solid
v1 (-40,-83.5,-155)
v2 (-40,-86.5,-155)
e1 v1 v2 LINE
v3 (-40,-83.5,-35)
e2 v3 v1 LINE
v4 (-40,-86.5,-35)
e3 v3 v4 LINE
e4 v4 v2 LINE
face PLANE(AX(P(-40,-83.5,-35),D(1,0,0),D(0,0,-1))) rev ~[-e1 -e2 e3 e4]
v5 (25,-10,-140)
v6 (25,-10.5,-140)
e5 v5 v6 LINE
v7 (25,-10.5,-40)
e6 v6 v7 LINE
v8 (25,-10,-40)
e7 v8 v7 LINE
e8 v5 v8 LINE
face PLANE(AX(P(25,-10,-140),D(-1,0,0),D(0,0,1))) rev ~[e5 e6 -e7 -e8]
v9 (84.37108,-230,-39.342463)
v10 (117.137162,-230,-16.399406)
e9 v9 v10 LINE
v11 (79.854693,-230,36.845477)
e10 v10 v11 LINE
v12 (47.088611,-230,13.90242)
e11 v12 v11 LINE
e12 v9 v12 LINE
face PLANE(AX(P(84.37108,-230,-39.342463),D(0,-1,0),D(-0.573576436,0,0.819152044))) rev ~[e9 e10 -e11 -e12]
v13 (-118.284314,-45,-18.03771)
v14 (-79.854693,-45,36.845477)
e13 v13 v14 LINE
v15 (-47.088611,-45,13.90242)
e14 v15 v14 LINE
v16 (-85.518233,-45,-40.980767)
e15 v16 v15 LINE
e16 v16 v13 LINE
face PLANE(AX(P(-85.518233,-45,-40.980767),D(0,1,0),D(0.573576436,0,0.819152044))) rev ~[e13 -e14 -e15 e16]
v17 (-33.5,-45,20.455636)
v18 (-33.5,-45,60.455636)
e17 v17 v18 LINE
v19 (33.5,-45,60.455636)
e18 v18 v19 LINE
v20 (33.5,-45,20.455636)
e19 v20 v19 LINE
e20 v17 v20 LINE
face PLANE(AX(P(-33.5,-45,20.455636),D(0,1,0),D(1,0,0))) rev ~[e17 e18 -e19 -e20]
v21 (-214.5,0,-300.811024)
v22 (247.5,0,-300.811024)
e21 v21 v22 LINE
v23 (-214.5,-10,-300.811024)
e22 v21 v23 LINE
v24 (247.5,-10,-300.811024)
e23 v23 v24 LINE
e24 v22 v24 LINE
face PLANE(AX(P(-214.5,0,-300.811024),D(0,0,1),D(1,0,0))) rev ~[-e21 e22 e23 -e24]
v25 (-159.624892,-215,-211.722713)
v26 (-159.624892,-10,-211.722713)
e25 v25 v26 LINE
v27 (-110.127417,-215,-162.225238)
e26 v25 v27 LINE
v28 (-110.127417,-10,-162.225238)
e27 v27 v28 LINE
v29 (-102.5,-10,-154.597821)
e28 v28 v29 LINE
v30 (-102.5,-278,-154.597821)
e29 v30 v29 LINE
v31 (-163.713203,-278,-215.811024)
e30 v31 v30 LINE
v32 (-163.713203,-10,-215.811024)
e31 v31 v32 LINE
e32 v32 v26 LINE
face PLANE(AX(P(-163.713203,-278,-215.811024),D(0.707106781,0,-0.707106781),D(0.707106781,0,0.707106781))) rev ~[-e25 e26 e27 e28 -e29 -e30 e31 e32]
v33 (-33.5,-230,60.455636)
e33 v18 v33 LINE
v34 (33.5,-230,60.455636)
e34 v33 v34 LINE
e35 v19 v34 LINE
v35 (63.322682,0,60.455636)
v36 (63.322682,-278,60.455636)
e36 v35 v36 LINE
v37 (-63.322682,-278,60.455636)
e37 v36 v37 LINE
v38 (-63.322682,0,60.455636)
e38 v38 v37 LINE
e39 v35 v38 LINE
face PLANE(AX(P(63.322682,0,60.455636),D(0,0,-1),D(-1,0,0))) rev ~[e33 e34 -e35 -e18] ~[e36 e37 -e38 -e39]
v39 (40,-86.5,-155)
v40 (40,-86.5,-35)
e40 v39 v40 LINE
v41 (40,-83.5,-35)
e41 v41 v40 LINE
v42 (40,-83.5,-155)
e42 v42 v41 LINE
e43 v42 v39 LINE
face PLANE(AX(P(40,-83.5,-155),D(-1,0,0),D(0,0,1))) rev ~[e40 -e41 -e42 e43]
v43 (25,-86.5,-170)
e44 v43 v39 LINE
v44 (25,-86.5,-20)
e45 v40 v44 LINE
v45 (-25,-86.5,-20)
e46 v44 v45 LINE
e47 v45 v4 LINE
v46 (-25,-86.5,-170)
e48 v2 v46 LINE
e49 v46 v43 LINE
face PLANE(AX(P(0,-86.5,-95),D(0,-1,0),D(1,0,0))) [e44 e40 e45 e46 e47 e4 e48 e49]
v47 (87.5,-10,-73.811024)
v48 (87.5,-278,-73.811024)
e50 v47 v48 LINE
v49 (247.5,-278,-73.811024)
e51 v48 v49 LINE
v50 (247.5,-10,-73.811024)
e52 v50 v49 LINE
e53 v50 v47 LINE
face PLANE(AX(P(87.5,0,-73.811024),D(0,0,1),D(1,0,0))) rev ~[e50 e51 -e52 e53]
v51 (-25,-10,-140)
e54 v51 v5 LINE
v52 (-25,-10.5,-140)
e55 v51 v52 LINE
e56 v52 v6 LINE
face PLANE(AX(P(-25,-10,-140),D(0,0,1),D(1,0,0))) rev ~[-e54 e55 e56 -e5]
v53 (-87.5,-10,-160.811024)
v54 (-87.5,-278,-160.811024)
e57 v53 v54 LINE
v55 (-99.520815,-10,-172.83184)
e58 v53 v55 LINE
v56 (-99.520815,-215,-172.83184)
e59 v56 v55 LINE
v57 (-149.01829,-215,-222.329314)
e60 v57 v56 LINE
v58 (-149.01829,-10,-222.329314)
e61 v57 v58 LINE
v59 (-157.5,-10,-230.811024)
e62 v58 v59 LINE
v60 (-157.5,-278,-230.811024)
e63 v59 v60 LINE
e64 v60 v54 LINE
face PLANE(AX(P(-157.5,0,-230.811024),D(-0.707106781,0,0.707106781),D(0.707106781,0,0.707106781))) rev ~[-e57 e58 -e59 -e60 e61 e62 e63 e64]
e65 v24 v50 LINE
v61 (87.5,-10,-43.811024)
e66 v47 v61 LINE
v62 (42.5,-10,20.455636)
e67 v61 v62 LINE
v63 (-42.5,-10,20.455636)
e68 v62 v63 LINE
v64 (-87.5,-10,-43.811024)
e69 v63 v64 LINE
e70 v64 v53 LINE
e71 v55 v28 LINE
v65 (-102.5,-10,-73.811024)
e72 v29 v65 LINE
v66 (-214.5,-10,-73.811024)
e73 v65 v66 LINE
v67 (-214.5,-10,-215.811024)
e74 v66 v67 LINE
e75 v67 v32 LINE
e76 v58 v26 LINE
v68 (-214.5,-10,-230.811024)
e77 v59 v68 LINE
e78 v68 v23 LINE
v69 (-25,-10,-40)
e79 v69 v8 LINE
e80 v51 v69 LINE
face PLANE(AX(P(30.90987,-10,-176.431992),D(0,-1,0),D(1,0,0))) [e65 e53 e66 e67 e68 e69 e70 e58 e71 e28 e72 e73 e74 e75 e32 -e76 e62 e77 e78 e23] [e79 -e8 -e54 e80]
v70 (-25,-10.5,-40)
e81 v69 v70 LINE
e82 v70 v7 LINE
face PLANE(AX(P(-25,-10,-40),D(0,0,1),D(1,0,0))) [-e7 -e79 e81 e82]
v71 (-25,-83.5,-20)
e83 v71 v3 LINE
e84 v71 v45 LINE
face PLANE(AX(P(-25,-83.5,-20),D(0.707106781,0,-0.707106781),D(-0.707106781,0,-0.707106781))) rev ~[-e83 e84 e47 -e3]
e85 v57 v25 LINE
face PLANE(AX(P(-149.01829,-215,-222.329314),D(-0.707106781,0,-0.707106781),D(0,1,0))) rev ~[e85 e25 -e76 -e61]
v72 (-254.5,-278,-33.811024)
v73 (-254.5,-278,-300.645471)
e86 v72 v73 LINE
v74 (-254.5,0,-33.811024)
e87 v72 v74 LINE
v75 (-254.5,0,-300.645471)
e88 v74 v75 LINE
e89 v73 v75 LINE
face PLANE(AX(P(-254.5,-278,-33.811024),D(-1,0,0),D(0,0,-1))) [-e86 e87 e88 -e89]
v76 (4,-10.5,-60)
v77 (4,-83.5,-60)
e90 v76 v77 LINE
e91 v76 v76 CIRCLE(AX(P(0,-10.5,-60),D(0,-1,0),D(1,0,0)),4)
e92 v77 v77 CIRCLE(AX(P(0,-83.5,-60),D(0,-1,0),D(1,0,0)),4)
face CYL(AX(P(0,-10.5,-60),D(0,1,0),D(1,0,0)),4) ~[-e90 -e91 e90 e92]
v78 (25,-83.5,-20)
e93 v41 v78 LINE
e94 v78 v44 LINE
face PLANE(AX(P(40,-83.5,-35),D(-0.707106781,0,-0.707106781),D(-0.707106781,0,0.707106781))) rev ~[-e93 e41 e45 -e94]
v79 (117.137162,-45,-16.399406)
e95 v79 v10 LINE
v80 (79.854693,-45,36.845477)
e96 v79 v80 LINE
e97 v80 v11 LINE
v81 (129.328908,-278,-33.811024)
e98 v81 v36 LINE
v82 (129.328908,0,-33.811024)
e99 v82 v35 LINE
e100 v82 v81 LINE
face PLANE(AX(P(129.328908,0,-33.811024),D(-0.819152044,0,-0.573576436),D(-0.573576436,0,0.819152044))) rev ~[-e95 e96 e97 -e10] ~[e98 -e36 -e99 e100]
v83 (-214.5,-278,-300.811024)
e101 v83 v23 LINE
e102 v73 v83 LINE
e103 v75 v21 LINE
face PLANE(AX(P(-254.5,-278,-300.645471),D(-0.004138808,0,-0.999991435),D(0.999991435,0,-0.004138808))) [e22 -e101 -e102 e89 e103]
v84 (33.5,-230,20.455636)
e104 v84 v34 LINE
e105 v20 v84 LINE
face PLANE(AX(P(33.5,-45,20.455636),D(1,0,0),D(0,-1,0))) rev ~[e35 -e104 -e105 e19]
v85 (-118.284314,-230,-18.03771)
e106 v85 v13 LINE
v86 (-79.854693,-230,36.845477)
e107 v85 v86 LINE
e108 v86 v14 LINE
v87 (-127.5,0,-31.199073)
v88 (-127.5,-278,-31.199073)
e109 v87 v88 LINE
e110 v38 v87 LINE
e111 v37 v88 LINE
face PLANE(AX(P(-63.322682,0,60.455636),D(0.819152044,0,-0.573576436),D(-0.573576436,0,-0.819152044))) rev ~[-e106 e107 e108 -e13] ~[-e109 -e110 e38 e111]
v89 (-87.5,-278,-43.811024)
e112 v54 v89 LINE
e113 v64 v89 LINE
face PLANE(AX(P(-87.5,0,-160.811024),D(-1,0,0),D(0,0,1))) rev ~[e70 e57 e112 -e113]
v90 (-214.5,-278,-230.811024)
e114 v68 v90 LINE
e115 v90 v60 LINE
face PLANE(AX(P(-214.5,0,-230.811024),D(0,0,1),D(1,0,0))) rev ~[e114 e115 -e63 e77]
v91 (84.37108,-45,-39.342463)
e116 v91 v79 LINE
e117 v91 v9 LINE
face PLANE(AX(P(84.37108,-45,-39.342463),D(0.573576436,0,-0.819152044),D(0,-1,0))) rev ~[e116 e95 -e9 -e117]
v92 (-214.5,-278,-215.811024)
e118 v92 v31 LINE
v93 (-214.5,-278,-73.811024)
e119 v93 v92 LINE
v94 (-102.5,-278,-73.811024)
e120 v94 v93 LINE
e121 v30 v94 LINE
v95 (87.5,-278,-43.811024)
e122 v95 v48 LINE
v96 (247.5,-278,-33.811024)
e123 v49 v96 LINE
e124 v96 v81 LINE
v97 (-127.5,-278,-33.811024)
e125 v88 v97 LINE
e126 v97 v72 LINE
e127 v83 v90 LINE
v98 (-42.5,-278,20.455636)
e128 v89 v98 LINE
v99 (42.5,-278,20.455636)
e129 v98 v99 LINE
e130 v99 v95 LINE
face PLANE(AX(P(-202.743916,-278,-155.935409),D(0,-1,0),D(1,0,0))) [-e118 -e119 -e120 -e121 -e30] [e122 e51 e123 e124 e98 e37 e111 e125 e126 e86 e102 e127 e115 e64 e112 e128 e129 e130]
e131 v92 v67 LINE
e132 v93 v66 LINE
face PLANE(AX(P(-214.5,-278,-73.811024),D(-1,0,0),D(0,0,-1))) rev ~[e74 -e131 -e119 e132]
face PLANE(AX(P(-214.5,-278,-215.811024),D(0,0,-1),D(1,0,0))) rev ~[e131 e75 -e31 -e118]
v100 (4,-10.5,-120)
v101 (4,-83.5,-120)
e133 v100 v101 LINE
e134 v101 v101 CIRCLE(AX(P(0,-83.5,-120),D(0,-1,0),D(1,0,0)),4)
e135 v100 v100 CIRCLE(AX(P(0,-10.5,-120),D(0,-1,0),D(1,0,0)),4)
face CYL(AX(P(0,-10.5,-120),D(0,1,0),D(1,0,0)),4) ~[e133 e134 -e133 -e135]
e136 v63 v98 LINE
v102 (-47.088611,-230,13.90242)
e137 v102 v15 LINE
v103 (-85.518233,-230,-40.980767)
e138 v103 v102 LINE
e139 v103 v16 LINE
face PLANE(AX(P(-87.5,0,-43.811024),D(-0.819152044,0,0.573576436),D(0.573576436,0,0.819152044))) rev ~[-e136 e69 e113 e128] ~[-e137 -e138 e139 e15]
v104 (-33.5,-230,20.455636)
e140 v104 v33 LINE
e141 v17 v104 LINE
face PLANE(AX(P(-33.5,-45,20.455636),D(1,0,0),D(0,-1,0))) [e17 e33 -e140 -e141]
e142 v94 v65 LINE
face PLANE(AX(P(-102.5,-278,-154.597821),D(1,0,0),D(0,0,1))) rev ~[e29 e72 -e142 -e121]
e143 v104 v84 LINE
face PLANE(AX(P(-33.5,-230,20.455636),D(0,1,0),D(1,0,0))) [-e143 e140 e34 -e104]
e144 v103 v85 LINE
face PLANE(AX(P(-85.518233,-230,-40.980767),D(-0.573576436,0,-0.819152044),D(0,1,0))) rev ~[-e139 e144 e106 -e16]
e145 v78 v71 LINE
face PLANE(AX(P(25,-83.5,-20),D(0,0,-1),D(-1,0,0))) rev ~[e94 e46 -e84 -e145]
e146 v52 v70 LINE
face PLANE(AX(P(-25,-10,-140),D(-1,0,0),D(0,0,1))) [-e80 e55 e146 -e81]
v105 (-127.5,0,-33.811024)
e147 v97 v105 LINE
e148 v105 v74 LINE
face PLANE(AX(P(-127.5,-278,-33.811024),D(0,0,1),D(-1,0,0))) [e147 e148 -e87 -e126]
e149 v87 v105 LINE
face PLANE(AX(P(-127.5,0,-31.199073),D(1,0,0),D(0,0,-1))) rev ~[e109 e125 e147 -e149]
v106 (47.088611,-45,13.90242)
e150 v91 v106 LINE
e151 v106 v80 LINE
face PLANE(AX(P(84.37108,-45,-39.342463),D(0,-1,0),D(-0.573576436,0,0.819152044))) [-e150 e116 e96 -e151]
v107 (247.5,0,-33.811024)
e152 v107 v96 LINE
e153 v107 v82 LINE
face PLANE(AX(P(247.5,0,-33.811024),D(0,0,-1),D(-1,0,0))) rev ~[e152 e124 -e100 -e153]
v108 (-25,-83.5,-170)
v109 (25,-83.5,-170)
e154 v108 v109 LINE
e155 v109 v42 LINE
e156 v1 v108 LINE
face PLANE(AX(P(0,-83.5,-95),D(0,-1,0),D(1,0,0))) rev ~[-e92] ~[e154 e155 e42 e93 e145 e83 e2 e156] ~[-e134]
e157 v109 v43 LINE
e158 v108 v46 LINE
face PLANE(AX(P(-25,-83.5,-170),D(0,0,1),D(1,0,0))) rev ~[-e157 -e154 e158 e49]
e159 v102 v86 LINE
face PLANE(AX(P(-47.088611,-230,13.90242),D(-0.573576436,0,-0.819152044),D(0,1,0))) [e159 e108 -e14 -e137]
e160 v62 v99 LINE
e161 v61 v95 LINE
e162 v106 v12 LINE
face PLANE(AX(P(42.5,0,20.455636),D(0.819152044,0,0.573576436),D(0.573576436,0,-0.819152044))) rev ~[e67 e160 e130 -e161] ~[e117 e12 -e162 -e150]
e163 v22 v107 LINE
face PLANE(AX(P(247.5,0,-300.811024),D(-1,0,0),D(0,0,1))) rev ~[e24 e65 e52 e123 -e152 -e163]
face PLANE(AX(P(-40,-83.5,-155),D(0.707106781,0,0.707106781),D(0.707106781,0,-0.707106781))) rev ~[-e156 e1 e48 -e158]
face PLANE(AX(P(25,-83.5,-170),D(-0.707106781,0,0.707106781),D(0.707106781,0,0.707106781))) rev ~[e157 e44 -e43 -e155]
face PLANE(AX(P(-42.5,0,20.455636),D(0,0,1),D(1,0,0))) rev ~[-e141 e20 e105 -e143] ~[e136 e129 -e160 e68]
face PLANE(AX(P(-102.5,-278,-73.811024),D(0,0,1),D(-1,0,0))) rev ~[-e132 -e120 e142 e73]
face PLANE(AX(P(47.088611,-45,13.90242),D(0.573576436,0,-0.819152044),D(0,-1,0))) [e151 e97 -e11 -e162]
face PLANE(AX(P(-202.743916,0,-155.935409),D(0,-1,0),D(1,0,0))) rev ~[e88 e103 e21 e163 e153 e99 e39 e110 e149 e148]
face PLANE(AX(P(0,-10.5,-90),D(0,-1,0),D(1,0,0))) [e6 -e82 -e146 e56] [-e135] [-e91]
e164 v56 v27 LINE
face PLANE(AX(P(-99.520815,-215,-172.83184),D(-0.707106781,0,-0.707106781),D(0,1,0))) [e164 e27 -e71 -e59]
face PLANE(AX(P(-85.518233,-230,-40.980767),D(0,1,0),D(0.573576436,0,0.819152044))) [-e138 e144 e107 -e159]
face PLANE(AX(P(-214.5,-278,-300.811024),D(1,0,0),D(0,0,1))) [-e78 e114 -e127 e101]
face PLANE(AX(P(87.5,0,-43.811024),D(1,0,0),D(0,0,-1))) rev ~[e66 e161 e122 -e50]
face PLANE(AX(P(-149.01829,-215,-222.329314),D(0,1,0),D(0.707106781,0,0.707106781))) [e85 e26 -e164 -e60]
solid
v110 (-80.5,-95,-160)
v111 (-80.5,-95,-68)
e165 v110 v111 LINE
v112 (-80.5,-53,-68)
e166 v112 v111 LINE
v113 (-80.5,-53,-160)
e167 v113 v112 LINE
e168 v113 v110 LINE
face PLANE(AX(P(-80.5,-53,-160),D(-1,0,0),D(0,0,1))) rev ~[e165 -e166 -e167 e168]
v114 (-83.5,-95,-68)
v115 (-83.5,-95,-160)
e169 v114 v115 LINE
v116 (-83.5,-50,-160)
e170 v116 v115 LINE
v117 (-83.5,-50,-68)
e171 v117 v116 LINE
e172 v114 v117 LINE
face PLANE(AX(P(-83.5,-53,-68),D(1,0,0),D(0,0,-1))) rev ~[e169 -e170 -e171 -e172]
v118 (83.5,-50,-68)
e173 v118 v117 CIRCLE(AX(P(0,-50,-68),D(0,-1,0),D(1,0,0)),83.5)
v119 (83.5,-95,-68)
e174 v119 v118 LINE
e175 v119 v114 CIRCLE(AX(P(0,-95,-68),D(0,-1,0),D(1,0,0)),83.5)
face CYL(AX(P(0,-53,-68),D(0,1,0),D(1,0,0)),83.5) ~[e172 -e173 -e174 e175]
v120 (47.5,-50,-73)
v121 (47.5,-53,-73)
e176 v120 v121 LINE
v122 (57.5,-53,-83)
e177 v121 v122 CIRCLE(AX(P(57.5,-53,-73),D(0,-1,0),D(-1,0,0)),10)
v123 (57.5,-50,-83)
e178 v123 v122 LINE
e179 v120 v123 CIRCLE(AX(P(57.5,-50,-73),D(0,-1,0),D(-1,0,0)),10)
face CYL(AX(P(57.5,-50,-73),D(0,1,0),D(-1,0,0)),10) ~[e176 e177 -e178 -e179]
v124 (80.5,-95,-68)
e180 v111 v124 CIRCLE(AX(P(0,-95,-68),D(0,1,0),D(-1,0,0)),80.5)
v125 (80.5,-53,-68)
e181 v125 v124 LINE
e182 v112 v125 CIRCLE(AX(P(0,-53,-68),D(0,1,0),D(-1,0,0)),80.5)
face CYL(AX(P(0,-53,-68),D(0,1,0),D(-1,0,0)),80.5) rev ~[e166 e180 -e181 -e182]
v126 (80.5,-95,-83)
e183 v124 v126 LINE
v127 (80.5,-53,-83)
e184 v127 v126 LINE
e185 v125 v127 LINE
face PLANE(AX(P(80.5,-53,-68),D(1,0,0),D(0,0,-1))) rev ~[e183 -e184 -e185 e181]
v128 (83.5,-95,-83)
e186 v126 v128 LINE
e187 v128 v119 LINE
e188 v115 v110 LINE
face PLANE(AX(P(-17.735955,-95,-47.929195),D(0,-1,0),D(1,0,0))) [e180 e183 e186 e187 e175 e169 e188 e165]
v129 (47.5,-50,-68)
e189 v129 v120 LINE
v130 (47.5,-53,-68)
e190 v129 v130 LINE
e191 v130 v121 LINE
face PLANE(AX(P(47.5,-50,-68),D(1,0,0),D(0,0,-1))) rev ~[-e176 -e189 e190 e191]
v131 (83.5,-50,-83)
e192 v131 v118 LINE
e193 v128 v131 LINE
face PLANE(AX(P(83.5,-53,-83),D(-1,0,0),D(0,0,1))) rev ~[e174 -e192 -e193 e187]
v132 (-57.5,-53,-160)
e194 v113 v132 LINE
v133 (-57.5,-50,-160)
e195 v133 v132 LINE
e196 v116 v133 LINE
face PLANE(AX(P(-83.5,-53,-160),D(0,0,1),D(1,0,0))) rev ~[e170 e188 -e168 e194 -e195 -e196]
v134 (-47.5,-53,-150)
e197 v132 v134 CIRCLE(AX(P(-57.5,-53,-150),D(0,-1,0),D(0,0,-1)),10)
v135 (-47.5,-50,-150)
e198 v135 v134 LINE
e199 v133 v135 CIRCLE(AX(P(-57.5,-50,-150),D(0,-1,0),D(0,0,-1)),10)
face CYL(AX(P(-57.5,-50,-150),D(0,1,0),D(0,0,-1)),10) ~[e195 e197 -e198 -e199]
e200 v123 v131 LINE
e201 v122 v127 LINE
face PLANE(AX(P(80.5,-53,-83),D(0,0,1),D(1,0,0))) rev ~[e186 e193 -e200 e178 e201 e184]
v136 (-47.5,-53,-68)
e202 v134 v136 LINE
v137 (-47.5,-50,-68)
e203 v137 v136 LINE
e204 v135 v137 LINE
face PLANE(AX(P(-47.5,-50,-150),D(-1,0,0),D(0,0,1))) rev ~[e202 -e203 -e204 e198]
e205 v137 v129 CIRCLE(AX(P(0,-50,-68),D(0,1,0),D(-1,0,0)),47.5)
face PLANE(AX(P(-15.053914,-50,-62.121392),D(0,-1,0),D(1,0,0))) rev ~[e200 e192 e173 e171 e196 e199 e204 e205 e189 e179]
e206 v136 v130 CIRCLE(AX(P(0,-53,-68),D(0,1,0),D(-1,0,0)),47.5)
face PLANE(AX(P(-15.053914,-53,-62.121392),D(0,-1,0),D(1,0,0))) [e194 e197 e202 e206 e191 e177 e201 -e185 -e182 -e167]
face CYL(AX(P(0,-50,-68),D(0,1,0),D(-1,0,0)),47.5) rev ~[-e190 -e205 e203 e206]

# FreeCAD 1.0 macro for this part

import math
import FreeCAD as App
import Part
import Sketcher
Q = App.Units.Quantity


def add_polygon(sketch, points):
    """Adds a closed chain of lines whose ends are joined by coincident constraints."""
    first, n = sketch.GeometryCount, len(points)
    for a, b in zip(points, points[1:] + points[:1]):
        sketch.addGeometry(Part.LineSegment(App.Vector(*a, 0), App.Vector(*b, 0)), False)
    for i in range(n):
        sketch.addConstraint(Sketcher.Constraint("Coincident", first + i, 2, first + (i + 1) % n, 1))

doc = App.newDocument("Part")
params = doc.addObject("Spreadsheet::Sheet", "Params")
for row, (alias, value) in enumerate([
    ("sketch1_width", "462 mm"),
    ("sketch1_width2", "160 mm"),
    ("sketch1_width3", "85 mm"),
    ("sketch1_width4", "57 mm"),
    ("sketch1_height", "70 mm"),
    ("pad1_length", "10 mm"),
    ("sketch2_width", "160 mm"),
    ("sketch2_width2", "57 mm"),
    ("sketch2_width3", "85 mm"),
    ("sketch2_height", "30 mm"),
    ("sketch2_height2", "40 mm"),
    ("pad2_length", "278 mm"),
    ("sketch3_width", "67 mm"),
    ("sketch3_height", "185 mm"),
    ("pocket1_length", "50 mm"),
    ("sketch4_width", "185 mm"),
    ("sketch4_height", "67 mm"),
    ("pocket2_length", "50 mm"),
    ("sketch5_width", "185 mm"),
    ("sketch5_height", "65 mm"),
    ("pocket3_length", "50 mm"),
    ("sketch6_width", "127 mm"),
    ("sketch6_height", "85 mm"),
    ("pad3_length", "278 mm"),
    ("sketch7_width", "112 mm"),
    ("sketch7_height", "142 mm"),
    ("pocket4_length", "268 mm"),
    ("sketch8_width", "205 mm"),
    ("sketch8_height", "70 mm"),
    ("pocket5_length", "25 mm"),
    ("sketch9_width", "50 mm"),
    ("sketch9_height", "100 mm"),
    ("pad4_length", "0.5 mm"),
    ("sketch10_diameter", "8 mm"),
    ("pad5_length", "73 mm"),
    ("sketch11_width", "50 mm"),
    ("sketch11_height", "120 mm"),
    ("pad6_length", "3 mm"),
    ("sketch12_radius", "10 mm"),
    ("sketch12_radius2", "47.5 mm"),
    ("sketch12_radius3", "83.5 mm"),
    ("sketch12_height", "5 mm"),
    ("sketch12_height2", "92 mm"),
    ("pad7_length", "3 mm"),
    ("sketch13_radius", "80.5 mm"),
    ("sketch13_radius2", "83.5 mm"),
    ("sketch13_height", "92 mm"),
    ("sketch13_height2", "15 mm"),
    ("pad8_length", "42 mm"),
], start=1):
    params.set(f"A{row}", alias)
    params.set(f"B{row}", "=" + value)
    params.setAlias(f"B{row}", alias)

body = doc.addObject("PartDesign::Body", "Body")

# Sketch on XZ plane
sketch1 = body.newObject("Sketcher::SketchObject", "Sketch")
sketch1.AttachmentSupport = (doc.getObject("XZ_Plane"), [""])
sketch1.MapMode = "FlatFace"
add_polygon(sketch1, [(-214.5, -230.811024), (-214.5, -300.811024), (247.5, -300.811024), (247.5, -73.811024), (87.5, -73.811024), (87.5, -43.811024), (42.5, 20.455636), (-42.5, 20.455636), (-87.5, -43.811024), (-87.5, -160.811024), (-157.5, -230.811024)])  # lines 0-10
sketch1.addConstraint([
    Sketcher.Constraint("Vertical", 0),
    Sketcher.Constraint("Horizontal", 1),
    Sketcher.Constraint("Vertical", 2),
    Sketcher.Constraint("Horizontal", 3),
    Sketcher.Constraint("Vertical", 4),
    Sketcher.Constraint("Horizontal", 6),
    Sketcher.Constraint("Vertical", 8),
    Sketcher.Constraint("Horizontal", 10),
    Sketcher.Constraint("Symmetric", 4, 2, 7, 2, -2),
    Sketcher.Constraint("Equal", 5, 7),
    Sketcher.Constraint("DistanceX", 1, 1, 1, 2, 462.0),
    Sketcher.Constraint("DistanceX", 3, 2, 3, 1, 160.0),
    Sketcher.Constraint("DistanceX", 6, 2, 6, 1, 85.0),
    Sketcher.Constraint("DistanceX", 10, 2, 10, 1, 57.0),
    Sketcher.Constraint("DistanceY", 0, 2, 0, 1, 70.0),
    Sketcher.Constraint("DistanceY", 2, 1, 2, 2, 227.0),
    Sketcher.Constraint("DistanceY", 4, 1, 4, 2, 30.0),
    Sketcher.Constraint("DistanceY", 8, 2, 8, 1, 117.0),
    Sketcher.Constraint("Angle", 5, Q("125 deg")),
    Sketcher.Constraint("Angle", 9, Q("-135 deg")),
    Sketcher.Constraint("DistanceY", 0, 2, -1, 1, 300.811024),
])
sketch1.setExpression("Constraints[21]", "Params.sketch1_width")
sketch1.setExpression("Constraints[22]", "Params.sketch1_width2")
sketch1.setExpression("Constraints[23]", "Params.sketch1_width3")
sketch1.setExpression("Constraints[24]", "Params.sketch1_width4")
sketch1.setExpression("Constraints[25]", "Params.sketch1_height")
pad1 = body.newObject("PartDesign::Pad", "Pad")
pad1.Profile = sketch1
pad1.setExpression("Length", "Params.pad1_length")

# Sketch on XZ plane
sketch2 = body.newObject("Sketcher::SketchObject", "Sketch001")
sketch2.AttachmentSupport = (doc.getObject("XZ_Plane"), [""])
sketch2.MapMode = "FlatFace"
add_polygon(sketch2, [(87.5, -43.811024), (87.5, -73.811024), (247.5, -73.811024), (247.5, -33.811024), (129.328908, -33.811024), (63.322682, 60.455636), (-63.322682, 60.455636), (-127.5, -31.199073), (-127.5, -179.597821), (-163.713203, -215.811024), (-214.5, -215.811024), (-214.5, -230.811024), (-157.5, -230.811024), (-87.5, -160.811024), (-87.5, -43.811024), (-42.5, 20.455636), (42.5, 20.455636)])  # lines 0-16
sketch2.addConstraint([
    Sketcher.Constraint("Vertical", 0),
    Sketcher.Constraint("Horizontal", 1),
    Sketcher.Constraint("Vertical", 2),
    Sketcher.Constraint("Horizontal", 3),
    Sketcher.Constraint("Horizontal", 5),
    Sketcher.Constraint("Vertical", 7),
    Sketcher.Constraint("Horizontal", 9),
    Sketcher.Constraint("Vertical", 10),
    Sketcher.Constraint("Horizontal", 11),
    Sketcher.Constraint("Vertical", 13),
    Sketcher.Constraint("Horizontal", 15),
    Sketcher.Constraint("Symmetric", 13, 2, 16, 2, -2),
    Sketcher.Constraint("Parallel", 8, 12),
    Sketcher.Constraint("Parallel", 6, 14),
    Sketcher.Constraint("Parallel", 4, 16),
    Sketcher.Constraint("Equal", 14, 16),
    Sketcher.Constraint("DistanceX", 1, 1, 1, 2, 160.0),
    Sketcher.Constraint("DistanceX", 11, 1, 11, 2, 57.0),
    Sketcher.Constraint("DistanceX", 15, 1, 15, 2, 85.0),
    Sketcher.Constraint("DistanceY", 0, 2, 0, 1, 30.0),
    Sketcher.Constraint("DistanceY", 2, 1, 2, 2, 40.0),
    Sketcher.Constraint("DistanceY", 10, 2, 10, 1, 15.0),
    Sketcher.Constraint("DistanceY", 13, 1, 13, 2, 117.0),
    Sketcher.Constraint("Angle", 4, Q("125 deg")),
    Sketcher.Constraint("Angle", 8, Q("-135 deg")),
    Sketcher.Constraint("DistanceX", 6, 2, 0, 2, 215.0),
    Sketcher.Constraint("DistanceY", 8, 2, 0, 2, 142.0),
    Sketcher.Constraint("DistanceX", 9, 2, 7, 2, 87.0),
    Sketcher.Constraint("DistanceY", 14, 2, 5, 2, 40.0),
    Sketcher.Constraint("DistanceX", 3, 2, 3, 1, 118.171092),
    Sketcher.Constraint("DistanceY", 7, 2, 7, 1, 148.398748),
    Sketcher.Constraint("Distance", 6, 111.889739),
    Sketcher.Constraint("DistanceY", 7, 2, -1, 1, 179.597821),
])
sketch2.setExpression("Constraints[33]", "Params.sketch2_width")
sketch2.setExpression("Constraints[34]", "Params.sketch2_width2")
sketch2.setExpression("Constraints[35]", "Params.sketch2_width3")
sketch2.setExpression("Constraints[36]", "Params.sketch2_height")
sketch2.setExpression("Constraints[37]", "Params.sketch2_height2")
pad2 = body.newObject("PartDesign::Pad", "Pad001")
pad2.Profile = sketch2
pad2.setExpression("Length", "Params.pad2_length")

# Sketch on XY plane
sketch3 = body.newObject("Sketcher::SketchObject", "Sketch002")
sketch3.AttachmentSupport = (doc.getObject("XY_Plane"), [""])
sketch3.MapMode = "FlatFace"
sketch3.AttachmentOffset = App.Placement(App.Vector(0, 0, 20.455636), App.Rotation())
add_polygon(sketch3, [(-33.5, -230), (-33.5, -45), (33.5, -45), (33.5, -230)])  # lines 0-3
sketch3.addConstraint([
    Sketcher.Constraint("Vertical", 0),
    Sketcher.Constraint("Horizontal", 1),
    Sketcher.Constraint("Vertical", 2),
    Sketcher.Constraint("Horizontal", 3),
    Sketcher.Constraint("DistanceX", 1, 1, 1, 2, 67.0),
    Sketcher.Constraint("DistanceY", 0, 1, 0, 2, 185.0),
    Sketcher.Constraint("DistanceY", 0, 2, -1, 1, 45.0),
    Sketcher.Constraint("DistanceX", 0, 2, -1, 1, 33.5),
])
sketch3.setExpression("Constraints[8]", "Params.sketch3_width")
sketch3.setExpression("Constraints[9]", "Params.sketch3_height")
pocket1 = body.newObject("PartDesign::Pocket", "Pocket")
pocket1.Profile = sketch3
pocket1.setExpression("Length", "Params.pocket1_length")
pocket1.Reversed = True

# Sketch on an angled plane
sketch4 = body.newObject("Sketcher::SketchObject", "Sketch003")
sketch4.Placement = App.Placement(App.Vector(-38.128933, 0, 26.698166), App.Rotation(App.Vector(0, 1, 0), App.Vector(0.573576436, 0, 0.819152044), App.Vector(0.819152044, 0, -0.573576436), "ZXY"))
add_polygon(sketch4, [(-230, -15.620723), (-230, -82.620722), (-45, -82.620722), (-45, -15.620723)])  # lines 0-3
sketch4.addConstraint([
    Sketcher.Constraint("Vertical", 0),
    Sketcher.Constraint("Horizontal", 1),
    Sketcher.Constraint("Vertical", 2),
    Sketcher.Constraint("Horizontal", 3),
    Sketcher.Constraint("DistanceX", 1, 1, 1, 2, 185.0),
    Sketcher.Constraint("DistanceY", 0, 2, 0, 1, 67.0),
    Sketcher.Constraint("DistanceX", 0, 2, -1, 1, 230.0),
    Sketcher.Constraint("DistanceY", 0, 2, -1, 1, 82.620722),
])
sketch4.setExpression("Constraints[8]", "Params.sketch4_width")
sketch4.setExpression("Constraints[9]", "Params.sketch4_height")
pocket2 = body.newObject("PartDesign::Pocket", "Pocket001")
pocket2.Profile = sketch4
pocket2.setExpression("Length", "Params.pocket2_length")

# Sketch on an angled plane
sketch5 = body.newObject("Sketcher::SketchObject", "Sketch004")
sketch5.Placement = App.Placement(App.Vector(38.128933, 0, 26.698166), App.Rotation(App.Vector(0, -1, 0), App.Vector(-0.573576436, 0, 0.819152044), App.Vector(-0.819152044, 0, -0.573576436), "ZXY"))
add_polygon(sketch5, [(45, -15.620723), (45, -80.620722), (230, -80.620722), (230, -15.620723)])  # lines 0-3
sketch5.addConstraint([
    Sketcher.Constraint("Vertical", 0),
    Sketcher.Constraint("Horizontal", 1),
    Sketcher.Constraint("Vertical", 2),
    Sketcher.Constraint("Horizontal", 3),
    Sketcher.Constraint("DistanceX", 1, 1, 1, 2, 185.0),
    Sketcher.Constraint("DistanceY", 0, 2, 0, 1, 65.0),
    Sketcher.Constraint("DistanceX", -1, 1, 0, 2, 45.0),
    Sketcher.Constraint("DistanceY", 0, 2, -1, 1, 80.620722),
])
sketch5.setExpression("Constraints[8]", "Params.sketch5_width")
sketch5.setExpression("Constraints[9]", "Params.sketch5_height")
pocket3 = body.newObject("PartDesign::Pocket", "Pocket002")
pocket3.Profile = sketch5
pocket3.setExpression("Length", "Params.pocket3_length")

# Sketch on XZ plane
sketch6 = body.newObject("Sketcher::SketchObject", "Sketch005")
sketch6.AttachmentSupport = (doc.getObject("XZ_Plane"), [""])
sketch6.MapMode = "FlatFace"
sketch6.AttachmentOffset = App.Placement(App.Vector(0, 0, 278), App.Rotation())
add_polygon(sketch6, [(-127.5, -179.597821), (-127.5, -33.811024), (-254.5, -33.811024), (-254.5, -300.645471), (-214.5, -300.811024), (-214.5, -215.811024), (-163.713203, -215.811024)])  # lines 0-6
sketch6.addConstraint([
    Sketcher.Constraint("Vertical", 0),
    Sketcher.Constraint("Horizontal", 1),
    Sketcher.Constraint("Vertical", 2),
    Sketcher.Constraint("Vertical", 4),
    Sketcher.Constraint("Horizontal", 5),
    Sketcher.Constraint("DistanceX", 1, 2, 1, 1, 127.0),
    Sketcher.Constraint("DistanceY", 4, 1, 4, 2, 85.0),
    Sketcher.Constraint("Angle", 6, Q("45 deg")),
    Sketcher.Constraint("DistanceX", 2, 2, 3, 2, 40.0),
    Sketcher.Constraint("DistanceY", 3, 2, 1, 2, 267.0),
    Sketcher.Constraint("DistanceX", 0, 2, -1, 1, 127.5),
    Sketcher.Constraint("DistanceX", 5, 1, 5, 2, 50.786797),
    Sketcher.Constraint("DistanceY", 2, 2, 2, 1, 266.834446),
    Sketcher.Constraint("DistanceY", 2, 2, -1, 1, 300.645471),
])
sketch6.setExpression("Constraints[12]", "Params.sketch6_width")
sketch6.setExpression("Constraints[13]", "Params.sketch6_height")
pad3 = body.newObject("PartDesign::Pad", "Pad002")
pad3.Profile = sketch6
pad3.setExpression("Length", "Params.pad3_length")
pad3.Reversed = True

# Sketch on XZ plane
sketch7 = body.newObject("Sketcher::SketchObject", "Sketch006")
sketch7.AttachmentSupport = (doc.getObject("XZ_Plane"), [""])
sketch7.MapMode = "FlatFace"
sketch7.AttachmentOffset = App.Placement(App.Vector(0, 0, 278), App.Rotation())
add_polygon(sketch7, [(-214.5, -73.811024), (-214.5, -215.811024), (-163.713203, -215.811024), (-102.5, -154.597821), (-102.5, -73.811024)])  # lines 0-4
sketch7.addConstraint([
    Sketcher.Constraint("Vertical", 0),
    Sketcher.Constraint("Horizontal", 1),
    Sketcher.Constraint("Vertical", 3),
    Sketcher.Constraint("Horizontal", 4),
    Sketcher.Constraint("DistanceX", 4, 2, 4, 1, 112.0),
    Sketcher.Constraint("DistanceY", 0, 2, 0, 1, 142.0),
    Sketcher.Constraint("Angle", 2, Q("45 deg")),
    Sketcher.Constraint("DistanceX", 0, 2, -1, 1, 214.5),
    Sketcher.Constraint("DistanceX", 1, 1, 1, 2, 50.786797),
    Sketcher.Constraint("DistanceY", 2, 2, -1, 1, 154.597821),
])
sketch7.setExpression("Constraints[9]", "Params.sketch7_width")
sketch7.setExpression("Constraints[10]", "Params.sketch7_height")
pocket4 = body.newObject("PartDesign::Pocket", "Pocket003")
pocket4.Profile = sketch7
pocket4.setExpression("Length", "Params.pocket4_length")

# Sketch on an angled plane
sketch8 = body.newObject("Sketcher::SketchObject", "Sketch007")
sketch8.Placement = App.Placement(App.Vector(36.655512, 0, -36.655512), App.Rotation(App.Vector(0, 1, 0), App.Vector(0.707106781, 0, 0.707106781), App.Vector(0.707106781, 0, -0.707106781), "ZXY"))
add_polygon(sketch8, [(-215, -192.582409), (-215, -262.582409), (-10, -262.582409), (-10, -192.582409)])  # lines 0-3
sketch8.addConstraint([
    Sketcher.Constraint("Vertical", 0),
    Sketcher.Constraint("Horizontal", 1),
    Sketcher.Constraint("Vertical", 2),
    Sketcher.Constraint("Horizontal", 3),
    Sketcher.Constraint("DistanceX", 1, 1, 1, 2, 205.0),
    Sketcher.Constraint("DistanceY", 0, 2, 0, 1, 70.0),
    Sketcher.Constraint("DistanceX", 0, 2, -1, 1, 215.0),
    Sketcher.Constraint("DistanceY", 0, 2, -1, 1, 262.582409),
])
sketch8.setExpression("Constraints[8]", "Params.sketch8_width")
sketch8.setExpression("Constraints[9]", "Params.sketch8_height")
pocket5 = body.newObject("PartDesign::Pocket", "Pocket004")
pocket5.Profile = sketch8
pocket5.setExpression("Length", "Params.pocket5_length")

# Sketch on XZ plane
sketch9 = body.newObject("Sketcher::SketchObject", "Sketch008")
sketch9.AttachmentSupport = (doc.getObject("XZ_Plane"), [""])
sketch9.MapMode = "FlatFace"
sketch9.AttachmentOffset = App.Placement(App.Vector(0, 0, 10), App.Rotation())
add_polygon(sketch9, [(-25, -40), (-25, -140), (25, -140), (25, -40)])  # lines 0-3
sketch9.addConstraint([
    Sketcher.Constraint("Vertical", 0),
    Sketcher.Constraint("Horizontal", 1),
    Sketcher.Constraint("Vertical", 2),
    Sketcher.Constraint("Horizontal", 3),
    Sketcher.Constraint("DistanceX", 1, 1, 1, 2, 50.0),
    Sketcher.Constraint("DistanceY", 0, 2, 0, 1, 100.0),
    Sketcher.Constraint("DistanceX", 0, 2, -1, 1, 25.0),
    Sketcher.Constraint("DistanceY", 0, 2, -1, 1, 140.0),
])
sketch9.setExpression("Constraints[8]", "Params.sketch9_width")
sketch9.setExpression("Constraints[9]", "Params.sketch9_height")
pad4 = body.newObject("PartDesign::Pad", "Pad003")
pad4.Profile = sketch9
pad4.setExpression("Length", "Params.pad4_length")

# Sketch on XZ plane
sketch10 = body.newObject("Sketcher::SketchObject", "Sketch009")
sketch10.AttachmentSupport = (doc.getObject("XZ_Plane"), [""])
sketch10.MapMode = "FlatFace"
sketch10.AttachmentOffset = App.Placement(App.Vector(0, 0, 10.5), App.Rotation())
sketch10.addGeometry([
    Part.Circle(App.Vector(0, -60, 0), App.Vector(0, 0, 1), 4),
    Part.Circle(App.Vector(0, -120, 0), App.Vector(0, 0, 1), 4),
], False)
sketch10.addConstraint([
    Sketcher.Constraint("Equal", 0, 1),
    Sketcher.Constraint("PointOnObject", 0, 3, -2),
    Sketcher.Constraint("PointOnObject", 1, 3, -2),
    Sketcher.Constraint("Diameter", 0, 8.0),
    Sketcher.Constraint("DistanceY", 0, 3, -1, 1, 60.0),
    Sketcher.Constraint("DistanceY", 1, 3, -1, 1, 120.0),
])
sketch10.setExpression("Constraints[3]", "Params.sketch10_diameter")
pad5 = body.newObject("PartDesign::Pad", "Pad004")
pad5.Profile = sketch10
pad5.setExpression("Length", "Params.pad5_length")

# Sketch on XZ plane
sketch11 = body.newObject("Sketcher::SketchObject", "Sketch010")
sketch11.AttachmentSupport = (doc.getObject("XZ_Plane"), [""])
sketch11.MapMode = "FlatFace"
sketch11.AttachmentOffset = App.Placement(App.Vector(0, 0, 83.5), App.Rotation())
add_polygon(sketch11, [(25, -20), (-25, -20), (-40, -35), (-40, -155), (-25, -170), (25, -170), (40, -155), (40, -35)])  # lines 0-7
sketch11.addConstraint([
    Sketcher.Constraint("Horizontal", 0),
    Sketcher.Constraint("Vertical", 2),
    Sketcher.Constraint("Horizontal", 4),
    Sketcher.Constraint("Vertical", 6),
    Sketcher.Constraint("Symmetric", 2, 2, 5, 2, -2),
    Sketcher.Constraint("Perpendicular", 1, 3),
    Sketcher.Constraint("Perpendicular", 3, 5),
    Sketcher.Constraint("Perpendicular", 5, 7),
    Sketcher.Constraint("Horizontal", 1, 2, 6, 2),
    Sketcher.Constraint("Vertical", 0, 2, 3, 2),
    Sketcher.Constraint("Vertical", 4, 2, 7, 2),
    Sketcher.Constraint("DistanceX", 0, 2, 0, 1, 50.0),
    Sketcher.Constraint("DistanceY", 2, 2, 2, 1, 120.0),
    Sketcher.Constraint("DistanceY", 0, 2, -1, 1, 20.0),
    Sketcher.Constraint("DistanceX", 1, 2, -1, 1, 40.0),
])
sketch11.setExpression("Constraints[19]", "Params.sketch11_width")
sketch11.setExpression("Constraints[20]", "Params.sketch11_height")
pad6 = body.newObject("PartDesign::Pad", "Pad005")
pad6.Profile = sketch11
pad6.setExpression("Length", "Params.pad6_length")
body2 = doc.addObject("PartDesign::Body", "Body001")

# Sketch on XZ plane
sketch12 = body2.newObject("Sketcher::SketchObject", "Sketch011")
sketch12.AttachmentSupport = (doc.getObject("XZ_Plane001"), [""])
sketch12.MapMode = "FlatFace"
sketch12.AttachmentOffset = App.Placement(App.Vector(0, 0, 50), App.Rotation())
sketch12.addGeometry([
    Part.ArcOfCircle(Part.Circle(App.Vector(0, -68, 0), App.Vector(0, 0, 1), 47.5), math.radians(0), math.radians(180)),  # 0
    Part.LineSegment(App.Vector(47.5, -68, 0), App.Vector(47.5, -73, 0)),  # 1
    Part.ArcOfCircle(Part.Circle(App.Vector(57.5, -73, 0), App.Vector(0, 0, 1), 10), math.radians(180), math.radians(270)),  # 2
    Part.LineSegment(App.Vector(57.5, -83, 0), App.Vector(83.5, -83, 0)),  # 3
    Part.LineSegment(App.Vector(83.5, -83, 0), App.Vector(83.5, -68, 0)),  # 4
    Part.ArcOfCircle(Part.Circle(App.Vector(0, -68, 0), App.Vector(0, 0, 1), 83.5), math.radians(0), math.radians(180)),  # 5
    Part.LineSegment(App.Vector(-83.5, -68, 0), App.Vector(-83.5, -160, 0)),  # 6
    Part.LineSegment(App.Vector(-83.5, -160, 0), App.Vector(-57.5, -160, 0)),  # 7
    Part.ArcOfCircle(Part.Circle(App.Vector(-57.5, -150, 0), App.Vector(0, 0, 1), 10), math.radians(-90), math.radians(0)),  # 8
    Part.LineSegment(App.Vector(-47.5, -150, 0), App.Vector(-47.5, -68, 0)),  # 9
], False)
sketch12.addConstraint([
    Sketcher.Constraint("Tangent", 0, 1, 1, 1),
    Sketcher.Constraint("Tangent", 1, 2, 2, 1),
    Sketcher.Constraint("Tangent", 2, 2, 3, 1),
    Sketcher.Constraint("Coincident", 3, 2, 4, 1),
    Sketcher.Constraint("Tangent", 4, 2, 5, 1),
    Sketcher.Constraint("Tangent", 5, 2, 6, 1),
    Sketcher.Constraint("Coincident", 6, 2, 7, 1),
    Sketcher.Constraint("Tangent", 7, 2, 8, 1),
    Sketcher.Constraint("Tangent", 8, 2, 9, 1),
    Sketcher.Constraint("Tangent", 9, 2, 0, 2),
    Sketcher.Constraint("Vertical", 1),
    Sketcher.Constraint("Horizontal", 3),
    Sketcher.Constraint("Vertical", 4),
    Sketcher.Constraint("Vertical", 6),
    Sketcher.Constraint("Horizontal", 7),
    Sketcher.Constraint("Vertical", 9),
    Sketcher.Constraint("Coincident", 5, 3, 0, 3),
    Sketcher.Constraint("Equal", 2, 8),
    Sketcher.Constraint("PointOnObject", 0, 3, -2),
    Sketcher.Constraint("Radius", 2, 10.0),
    Sketcher.Constraint("Radius", 0, 47.5),
    Sketcher.Constraint("Radius", 5, 83.5),
    Sketcher.Constraint("DistanceY", 1, 2, 1, 1, 5.0),
    Sketcher.Constraint("DistanceY", 6, 2, 6, 1, 92.0),
    Sketcher.Constraint("DistanceY", 0, 3, -1, 1, 68.0),
])
sketch12.setExpression("Constraints[19]", "Params.sketch12_radius")
sketch12.setExpression("Constraints[20]", "Params.sketch12_radius2")
sketch12.setExpression("Constraints[21]", "Params.sketch12_radius3")
sketch12.setExpression("Constraints[22]", "Params.sketch12_height")
sketch12.setExpression("Constraints[23]", "Params.sketch12_height2")
pad7 = body2.newObject("PartDesign::Pad", "Pad006")
pad7.Profile = sketch12
pad7.setExpression("Length", "Params.pad7_length")

# Sketch on XZ plane
sketch13 = body2.newObject("Sketcher::SketchObject", "Sketch012")
sketch13.AttachmentSupport = (doc.getObject("XZ_Plane001"), [""])
sketch13.MapMode = "FlatFace"
sketch13.AttachmentOffset = App.Placement(App.Vector(0, 0, 53), App.Rotation())
sketch13.addGeometry([
    Part.LineSegment(App.Vector(-83.5, -68, 0), App.Vector(-83.5, -160, 0)),  # 0
    Part.LineSegment(App.Vector(-83.5, -160, 0), App.Vector(-80.5, -160, 0)),  # 1
    Part.LineSegment(App.Vector(-80.5, -160, 0), App.Vector(-80.5, -68, 0)),  # 2
    Part.ArcOfCircle(Part.Circle(App.Vector(0, -68, 0), App.Vector(0, 0, 1), 80.5), math.radians(0), math.radians(180)),  # 3
    Part.LineSegment(App.Vector(80.5, -68, 0), App.Vector(80.5, -83, 0)),  # 4
    Part.LineSegment(App.Vector(80.5, -83, 0), App.Vector(83.5, -83, 0)),  # 5
    Part.LineSegment(App.Vector(83.5, -83, 0), App.Vector(83.5, -68, 0)),  # 6
    Part.ArcOfCircle(Part.Circle(App.Vector(0, -68, 0), App.Vector(0, 0, 1), 83.5), math.radians(0), math.radians(180)),  # 7
], False)
sketch13.addConstraint([
    Sketcher.Constraint("Coincident", 0, 2, 1, 1),
    Sketcher.Constraint("Coincident", 1, 2, 2, 1),
    Sketcher.Constraint("Tangent", 2, 2, 3, 2),
    Sketcher.Constraint("Tangent", 3, 1, 4, 1),
    Sketcher.Constraint("Coincident", 4, 2, 5, 1),
    Sketcher.Constraint("Coincident", 5, 2, 6, 1),
    Sketcher.Constraint("Tangent", 6, 2, 7, 1),
    Sketcher.Constraint("Tangent", 7, 2, 0, 1),
    Sketcher.Constraint("Vertical", 0),
    Sketcher.Constraint("Horizontal", 1),
    Sketcher.Constraint("Vertical", 2),
    Sketcher.Constraint("Vertical", 4),
    Sketcher.Constraint("Horizontal", 5),
    Sketcher.Constraint("Vertical", 6),
    Sketcher.Constraint("Coincident", 7, 3, 3, 3),
    Sketcher.Constraint("PointOnObject", 3, 3, -2),
    Sketcher.Constraint("Radius", 3, 80.5),
    Sketcher.Constraint("Radius", 7, 83.5),
    Sketcher.Constraint("DistanceY", 0, 2, 0, 1, 92.0),
    Sketcher.Constraint("DistanceY", 4, 2, 4, 1, 15.0),
    Sketcher.Constraint("DistanceY", 3, 3, -1, 1, 68.0),
])
sketch13.setExpression("Constraints[16]", "Params.sketch13_radius")
sketch13.setExpression("Constraints[17]", "Params.sketch13_radius2")
sketch13.setExpression("Constraints[18]", "Params.sketch13_height")
sketch13.setExpression("Constraints[19]", "Params.sketch13_height2")
pad8 = body2.newObject("PartDesign::Pad", "Pad007")
pad8.Profile = sketch13
pad8.setExpression("Length", "Params.pad8_length")

doc.recompute()
